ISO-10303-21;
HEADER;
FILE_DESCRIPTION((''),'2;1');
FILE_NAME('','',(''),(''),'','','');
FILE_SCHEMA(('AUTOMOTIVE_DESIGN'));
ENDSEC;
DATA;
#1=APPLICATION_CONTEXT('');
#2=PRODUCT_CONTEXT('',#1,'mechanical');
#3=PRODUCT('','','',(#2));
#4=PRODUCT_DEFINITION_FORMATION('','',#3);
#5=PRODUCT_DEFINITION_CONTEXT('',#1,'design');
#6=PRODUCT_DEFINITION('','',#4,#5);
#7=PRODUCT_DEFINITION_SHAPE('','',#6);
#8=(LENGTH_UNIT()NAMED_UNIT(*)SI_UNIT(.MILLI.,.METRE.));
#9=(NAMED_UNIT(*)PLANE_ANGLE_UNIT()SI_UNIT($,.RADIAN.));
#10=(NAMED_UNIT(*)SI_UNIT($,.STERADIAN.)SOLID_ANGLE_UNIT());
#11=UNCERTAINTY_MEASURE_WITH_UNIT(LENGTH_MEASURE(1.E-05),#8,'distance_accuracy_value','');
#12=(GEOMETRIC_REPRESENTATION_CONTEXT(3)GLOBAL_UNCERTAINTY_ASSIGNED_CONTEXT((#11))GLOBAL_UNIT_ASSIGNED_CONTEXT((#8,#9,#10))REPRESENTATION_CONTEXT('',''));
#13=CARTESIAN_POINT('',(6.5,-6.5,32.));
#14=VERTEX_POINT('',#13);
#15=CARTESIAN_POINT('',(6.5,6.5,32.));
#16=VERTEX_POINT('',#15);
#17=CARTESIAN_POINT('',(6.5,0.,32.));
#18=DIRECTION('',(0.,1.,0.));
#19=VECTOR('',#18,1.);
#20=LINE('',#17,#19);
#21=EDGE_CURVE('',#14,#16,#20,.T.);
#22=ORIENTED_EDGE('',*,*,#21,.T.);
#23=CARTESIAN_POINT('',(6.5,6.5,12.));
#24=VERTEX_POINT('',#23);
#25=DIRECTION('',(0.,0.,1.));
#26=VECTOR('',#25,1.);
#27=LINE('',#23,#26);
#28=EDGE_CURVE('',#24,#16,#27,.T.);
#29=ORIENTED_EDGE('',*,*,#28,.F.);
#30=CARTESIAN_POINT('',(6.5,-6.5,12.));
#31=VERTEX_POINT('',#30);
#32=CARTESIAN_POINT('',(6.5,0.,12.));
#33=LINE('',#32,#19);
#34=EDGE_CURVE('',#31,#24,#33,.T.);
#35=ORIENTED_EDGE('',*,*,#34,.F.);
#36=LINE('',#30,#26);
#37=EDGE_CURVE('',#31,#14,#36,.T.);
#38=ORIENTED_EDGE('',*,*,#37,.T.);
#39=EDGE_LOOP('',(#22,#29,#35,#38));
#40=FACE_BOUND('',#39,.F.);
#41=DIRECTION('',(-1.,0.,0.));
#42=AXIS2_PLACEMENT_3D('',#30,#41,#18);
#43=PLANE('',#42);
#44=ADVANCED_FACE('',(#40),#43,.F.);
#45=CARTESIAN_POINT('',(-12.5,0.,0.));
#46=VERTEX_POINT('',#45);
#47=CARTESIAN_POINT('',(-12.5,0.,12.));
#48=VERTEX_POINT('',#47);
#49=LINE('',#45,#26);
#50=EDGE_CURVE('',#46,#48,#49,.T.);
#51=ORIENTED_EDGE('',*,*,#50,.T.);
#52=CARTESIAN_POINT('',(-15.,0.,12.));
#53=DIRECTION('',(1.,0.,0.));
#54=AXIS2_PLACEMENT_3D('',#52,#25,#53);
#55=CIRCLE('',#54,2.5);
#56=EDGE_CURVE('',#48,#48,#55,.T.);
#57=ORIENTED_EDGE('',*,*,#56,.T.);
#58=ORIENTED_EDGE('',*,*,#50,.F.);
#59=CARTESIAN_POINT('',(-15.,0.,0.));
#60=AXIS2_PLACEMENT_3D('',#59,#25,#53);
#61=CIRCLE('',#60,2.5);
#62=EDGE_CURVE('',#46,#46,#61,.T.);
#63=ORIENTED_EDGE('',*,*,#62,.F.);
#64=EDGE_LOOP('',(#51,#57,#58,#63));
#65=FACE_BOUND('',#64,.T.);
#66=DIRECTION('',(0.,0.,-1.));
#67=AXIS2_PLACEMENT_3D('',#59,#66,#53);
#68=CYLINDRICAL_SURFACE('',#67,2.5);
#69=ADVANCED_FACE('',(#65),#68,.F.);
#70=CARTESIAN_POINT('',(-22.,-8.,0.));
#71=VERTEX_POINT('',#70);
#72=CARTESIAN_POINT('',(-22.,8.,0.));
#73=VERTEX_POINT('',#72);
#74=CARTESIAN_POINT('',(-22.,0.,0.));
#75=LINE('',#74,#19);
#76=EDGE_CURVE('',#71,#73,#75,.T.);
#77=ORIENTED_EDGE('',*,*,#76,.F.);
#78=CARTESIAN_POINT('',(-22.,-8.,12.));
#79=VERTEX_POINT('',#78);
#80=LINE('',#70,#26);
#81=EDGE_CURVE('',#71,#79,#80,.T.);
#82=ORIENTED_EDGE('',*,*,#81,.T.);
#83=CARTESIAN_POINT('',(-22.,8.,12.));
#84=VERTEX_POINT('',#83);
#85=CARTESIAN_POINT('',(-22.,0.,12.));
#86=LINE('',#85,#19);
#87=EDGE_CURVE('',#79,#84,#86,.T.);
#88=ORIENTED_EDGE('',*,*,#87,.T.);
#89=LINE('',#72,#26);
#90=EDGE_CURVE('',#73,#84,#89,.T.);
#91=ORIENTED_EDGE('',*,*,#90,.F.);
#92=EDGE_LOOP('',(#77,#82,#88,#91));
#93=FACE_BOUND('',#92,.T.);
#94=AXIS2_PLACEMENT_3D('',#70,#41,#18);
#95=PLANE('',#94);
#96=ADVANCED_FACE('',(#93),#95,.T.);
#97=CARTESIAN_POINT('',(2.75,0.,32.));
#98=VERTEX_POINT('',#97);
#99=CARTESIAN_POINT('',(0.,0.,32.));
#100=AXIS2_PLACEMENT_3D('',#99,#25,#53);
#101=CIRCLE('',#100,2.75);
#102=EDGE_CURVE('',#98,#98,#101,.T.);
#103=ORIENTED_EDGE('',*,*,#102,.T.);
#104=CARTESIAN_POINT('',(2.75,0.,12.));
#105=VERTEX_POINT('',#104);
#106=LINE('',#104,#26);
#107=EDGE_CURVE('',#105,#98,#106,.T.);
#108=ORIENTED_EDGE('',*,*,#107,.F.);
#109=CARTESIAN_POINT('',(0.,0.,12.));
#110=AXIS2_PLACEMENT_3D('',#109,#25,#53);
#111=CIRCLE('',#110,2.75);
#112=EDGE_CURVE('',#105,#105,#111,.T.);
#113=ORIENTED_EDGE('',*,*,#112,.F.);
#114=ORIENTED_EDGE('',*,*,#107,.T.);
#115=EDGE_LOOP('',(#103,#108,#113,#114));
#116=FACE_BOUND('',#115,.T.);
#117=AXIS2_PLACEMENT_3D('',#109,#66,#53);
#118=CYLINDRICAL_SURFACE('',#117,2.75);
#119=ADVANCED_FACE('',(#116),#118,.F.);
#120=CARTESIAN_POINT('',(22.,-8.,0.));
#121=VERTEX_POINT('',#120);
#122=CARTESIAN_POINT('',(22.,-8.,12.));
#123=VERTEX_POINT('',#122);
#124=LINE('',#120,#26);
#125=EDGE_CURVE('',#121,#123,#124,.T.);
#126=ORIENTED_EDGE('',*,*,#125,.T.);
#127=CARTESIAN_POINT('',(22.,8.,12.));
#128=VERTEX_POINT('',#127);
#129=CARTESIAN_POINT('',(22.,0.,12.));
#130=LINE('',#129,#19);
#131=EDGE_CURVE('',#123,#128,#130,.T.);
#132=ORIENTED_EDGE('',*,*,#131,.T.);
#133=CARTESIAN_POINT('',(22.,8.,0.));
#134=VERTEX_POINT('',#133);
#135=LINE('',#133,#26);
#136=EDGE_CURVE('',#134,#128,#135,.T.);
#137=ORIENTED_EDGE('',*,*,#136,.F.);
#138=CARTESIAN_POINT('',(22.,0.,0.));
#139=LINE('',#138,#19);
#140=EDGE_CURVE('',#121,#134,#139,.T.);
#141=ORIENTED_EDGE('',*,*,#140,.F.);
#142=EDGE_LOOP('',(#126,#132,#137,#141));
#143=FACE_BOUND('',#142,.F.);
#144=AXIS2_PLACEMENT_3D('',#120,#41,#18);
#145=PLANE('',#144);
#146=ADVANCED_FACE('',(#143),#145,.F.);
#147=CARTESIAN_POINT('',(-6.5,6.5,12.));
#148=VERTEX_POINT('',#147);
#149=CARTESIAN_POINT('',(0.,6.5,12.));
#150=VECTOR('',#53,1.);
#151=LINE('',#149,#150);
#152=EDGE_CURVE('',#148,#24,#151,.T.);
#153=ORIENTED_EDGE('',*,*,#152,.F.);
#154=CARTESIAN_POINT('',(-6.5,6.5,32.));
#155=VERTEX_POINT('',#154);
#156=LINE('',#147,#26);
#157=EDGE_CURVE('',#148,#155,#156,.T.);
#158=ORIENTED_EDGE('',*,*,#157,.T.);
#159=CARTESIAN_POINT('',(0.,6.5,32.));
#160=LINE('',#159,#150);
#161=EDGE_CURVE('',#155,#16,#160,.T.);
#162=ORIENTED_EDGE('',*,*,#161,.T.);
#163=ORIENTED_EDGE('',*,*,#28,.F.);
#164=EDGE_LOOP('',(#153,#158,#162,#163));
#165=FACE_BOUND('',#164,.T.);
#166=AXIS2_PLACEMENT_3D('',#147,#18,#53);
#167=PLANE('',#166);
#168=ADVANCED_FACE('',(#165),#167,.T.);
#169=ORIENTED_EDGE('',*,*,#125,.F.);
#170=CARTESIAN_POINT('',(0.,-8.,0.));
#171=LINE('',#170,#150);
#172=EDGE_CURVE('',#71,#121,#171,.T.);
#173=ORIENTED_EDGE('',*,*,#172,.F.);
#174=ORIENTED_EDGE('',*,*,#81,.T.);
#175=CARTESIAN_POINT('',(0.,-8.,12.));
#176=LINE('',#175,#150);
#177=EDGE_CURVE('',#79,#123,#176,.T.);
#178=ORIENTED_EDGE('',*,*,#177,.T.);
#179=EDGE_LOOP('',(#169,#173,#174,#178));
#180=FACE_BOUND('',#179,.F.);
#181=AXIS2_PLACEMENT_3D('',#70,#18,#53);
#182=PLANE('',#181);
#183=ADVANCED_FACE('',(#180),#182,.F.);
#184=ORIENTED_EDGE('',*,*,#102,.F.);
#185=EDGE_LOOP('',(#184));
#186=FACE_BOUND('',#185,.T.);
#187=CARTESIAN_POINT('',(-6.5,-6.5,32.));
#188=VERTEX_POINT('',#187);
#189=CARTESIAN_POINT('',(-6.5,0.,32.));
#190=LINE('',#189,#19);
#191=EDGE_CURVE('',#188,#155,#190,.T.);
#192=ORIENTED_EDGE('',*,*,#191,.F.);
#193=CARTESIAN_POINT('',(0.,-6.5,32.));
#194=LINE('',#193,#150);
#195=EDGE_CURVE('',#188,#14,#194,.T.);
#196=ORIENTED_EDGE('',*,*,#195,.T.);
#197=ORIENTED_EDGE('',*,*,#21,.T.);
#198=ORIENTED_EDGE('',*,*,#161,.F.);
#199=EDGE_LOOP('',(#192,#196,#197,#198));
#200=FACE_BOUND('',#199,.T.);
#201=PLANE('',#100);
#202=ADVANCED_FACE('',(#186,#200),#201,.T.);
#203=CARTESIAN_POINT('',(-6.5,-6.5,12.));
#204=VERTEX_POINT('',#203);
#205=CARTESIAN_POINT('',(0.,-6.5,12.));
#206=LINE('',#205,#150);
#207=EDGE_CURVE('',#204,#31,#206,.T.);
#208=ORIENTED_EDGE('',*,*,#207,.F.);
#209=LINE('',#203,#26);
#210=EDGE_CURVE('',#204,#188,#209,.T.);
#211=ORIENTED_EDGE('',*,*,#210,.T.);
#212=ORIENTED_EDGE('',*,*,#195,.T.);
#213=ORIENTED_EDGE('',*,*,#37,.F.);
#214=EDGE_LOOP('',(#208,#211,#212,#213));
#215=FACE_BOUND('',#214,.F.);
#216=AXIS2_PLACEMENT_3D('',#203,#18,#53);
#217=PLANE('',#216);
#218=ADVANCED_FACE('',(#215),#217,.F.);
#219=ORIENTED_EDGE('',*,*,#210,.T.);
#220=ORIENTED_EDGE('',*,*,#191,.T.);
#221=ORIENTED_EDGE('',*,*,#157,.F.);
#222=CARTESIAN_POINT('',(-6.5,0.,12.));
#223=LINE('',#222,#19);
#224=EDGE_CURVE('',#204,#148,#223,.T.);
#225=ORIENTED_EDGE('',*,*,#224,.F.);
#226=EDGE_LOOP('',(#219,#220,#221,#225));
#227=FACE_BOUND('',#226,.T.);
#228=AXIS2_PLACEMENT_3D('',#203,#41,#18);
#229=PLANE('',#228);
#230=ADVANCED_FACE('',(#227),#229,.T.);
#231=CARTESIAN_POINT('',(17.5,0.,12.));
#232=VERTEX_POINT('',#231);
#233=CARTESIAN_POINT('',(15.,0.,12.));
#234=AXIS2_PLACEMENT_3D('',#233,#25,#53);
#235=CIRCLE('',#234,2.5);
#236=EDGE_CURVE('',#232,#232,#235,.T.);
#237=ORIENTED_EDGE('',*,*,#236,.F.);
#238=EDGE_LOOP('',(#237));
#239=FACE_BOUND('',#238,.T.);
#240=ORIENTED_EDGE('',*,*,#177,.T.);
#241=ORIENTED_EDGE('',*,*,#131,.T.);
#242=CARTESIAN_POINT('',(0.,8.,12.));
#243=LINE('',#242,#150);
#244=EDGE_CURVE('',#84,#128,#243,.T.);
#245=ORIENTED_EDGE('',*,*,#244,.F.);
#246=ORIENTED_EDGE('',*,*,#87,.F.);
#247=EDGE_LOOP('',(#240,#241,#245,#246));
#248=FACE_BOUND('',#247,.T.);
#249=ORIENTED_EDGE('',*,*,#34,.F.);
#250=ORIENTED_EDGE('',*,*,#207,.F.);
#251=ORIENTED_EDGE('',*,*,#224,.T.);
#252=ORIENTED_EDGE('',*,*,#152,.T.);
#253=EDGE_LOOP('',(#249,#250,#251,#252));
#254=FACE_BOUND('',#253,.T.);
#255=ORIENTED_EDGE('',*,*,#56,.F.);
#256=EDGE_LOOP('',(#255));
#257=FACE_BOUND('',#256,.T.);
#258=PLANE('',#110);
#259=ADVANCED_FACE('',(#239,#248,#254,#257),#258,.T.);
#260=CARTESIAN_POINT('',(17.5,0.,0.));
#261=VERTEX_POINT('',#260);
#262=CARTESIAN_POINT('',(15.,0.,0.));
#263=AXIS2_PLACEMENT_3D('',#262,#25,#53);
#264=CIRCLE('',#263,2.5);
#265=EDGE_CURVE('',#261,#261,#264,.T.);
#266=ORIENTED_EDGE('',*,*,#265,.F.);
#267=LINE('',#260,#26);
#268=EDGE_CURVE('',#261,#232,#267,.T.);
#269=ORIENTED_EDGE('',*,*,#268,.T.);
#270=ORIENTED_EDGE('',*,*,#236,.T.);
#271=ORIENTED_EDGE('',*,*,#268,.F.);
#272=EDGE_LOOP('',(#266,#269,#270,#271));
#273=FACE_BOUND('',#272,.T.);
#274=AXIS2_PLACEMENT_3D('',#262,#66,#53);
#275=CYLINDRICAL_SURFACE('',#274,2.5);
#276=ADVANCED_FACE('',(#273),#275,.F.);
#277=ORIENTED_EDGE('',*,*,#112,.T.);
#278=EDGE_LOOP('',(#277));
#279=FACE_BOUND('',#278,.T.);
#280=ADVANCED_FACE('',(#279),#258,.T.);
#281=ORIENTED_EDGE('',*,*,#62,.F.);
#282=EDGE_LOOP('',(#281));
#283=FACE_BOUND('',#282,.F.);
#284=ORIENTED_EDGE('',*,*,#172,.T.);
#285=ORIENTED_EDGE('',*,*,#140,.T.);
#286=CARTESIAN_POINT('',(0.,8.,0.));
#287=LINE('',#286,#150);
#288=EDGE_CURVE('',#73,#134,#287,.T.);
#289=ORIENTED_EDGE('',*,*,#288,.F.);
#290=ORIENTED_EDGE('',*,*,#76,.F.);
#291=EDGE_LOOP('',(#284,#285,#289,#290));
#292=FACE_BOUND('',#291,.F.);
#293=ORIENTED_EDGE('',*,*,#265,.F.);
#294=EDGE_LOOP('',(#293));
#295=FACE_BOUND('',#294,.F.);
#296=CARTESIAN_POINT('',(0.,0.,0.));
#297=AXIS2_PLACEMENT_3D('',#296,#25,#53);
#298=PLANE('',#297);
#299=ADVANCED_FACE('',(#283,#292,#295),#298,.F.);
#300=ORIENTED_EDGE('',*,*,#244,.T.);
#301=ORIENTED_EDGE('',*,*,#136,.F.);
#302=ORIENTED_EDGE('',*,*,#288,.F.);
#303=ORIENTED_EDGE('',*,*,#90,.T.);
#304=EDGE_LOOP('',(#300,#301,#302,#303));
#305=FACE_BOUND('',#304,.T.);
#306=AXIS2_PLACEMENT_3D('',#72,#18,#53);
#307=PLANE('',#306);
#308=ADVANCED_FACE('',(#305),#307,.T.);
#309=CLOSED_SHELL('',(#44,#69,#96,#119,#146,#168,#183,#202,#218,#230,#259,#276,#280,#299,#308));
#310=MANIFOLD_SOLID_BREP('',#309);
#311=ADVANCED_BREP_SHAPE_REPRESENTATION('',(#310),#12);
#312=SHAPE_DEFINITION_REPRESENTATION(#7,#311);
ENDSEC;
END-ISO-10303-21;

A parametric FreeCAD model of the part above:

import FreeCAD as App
import Part
import Sketcher

V = App.Vector


def add_polygon(sketch, points):
    """Adds a closed chain of lines whose ends are joined by coincident constraints."""
    first, n = sketch.GeometryCount, len(points)
    for a, b in zip(points, points[1:] + points[:1]):
        sketch.addGeometry(Part.LineSegment(App.Vector(*a, 0), App.Vector(*b, 0)), False)
    for i in range(n):
        sketch.addConstraint(Sketcher.Constraint("Coincident", first + i, 2, first + (i + 1) % n, 1))

doc = App.newDocument("Part")
params = doc.addObject("Spreadsheet::Sheet", "Params")
for row, (alias, value) in enumerate([
    ("sketch1_diameter", "5 mm"),
    ("sketch1_width", "44 mm"),
    ("sketch1_height", "16 mm"),
    ("pad1_length", "12 mm"),
    ("sketch2_diameter", "5.5 mm"),
    ("sketch2_width", "13 mm"),
    ("pad2_length", "20 mm"),
], start=1):
    params.set(f"A{row}", alias)
    params.set(f"B{row}", "=" + value)
    params.setAlias(f"B{row}", alias)

body = doc.addObject("PartDesign::Body", "Body")

# Sketch on XY plane
sketch1 = doc.addObject("Sketcher::SketchObject", "Sketch")
body.addObject(sketch1)
sketch1.AttachmentSupport = (doc.XY_Plane, [""])
sketch1.MapMode = "FlatFace"
add_polygon(sketch1, [(-22, 8), (-22, -8), (22, -8), (22, 8)])  # lines 0-3
sketch1.addGeometry(Part.Circle(V(-15, 0, 0), V(0, 0, 1), 2.5), False)  # 4
sketch1.addGeometry(Part.Circle(V(15, 0, 0), V(0, 0, 1), 2.5), False)  # 5
sketch1.addConstraint([
    Sketcher.Constraint("Vertical", 0),
    Sketcher.Constraint("Horizontal", 1),
    Sketcher.Constraint("Vertical", 2),
    Sketcher.Constraint("Horizontal", 3),
    Sketcher.Constraint("Equal", 4, 5),
    Sketcher.Constraint("Symmetric", 4, 3, 5, 3, -1, 1),
    Sketcher.Constraint("Symmetric", 0, 2, 2, 2, -1, 1),
    Sketcher.Constraint("PointOnObject", 4, 3, -1),
    Sketcher.Constraint("Diameter", 4, 5.0),
    Sketcher.Constraint("DistanceX", 1, 1, 1, 2, 44.0),
    Sketcher.Constraint("DistanceY", 0, 2, 0, 1, 16.0),
    Sketcher.Constraint("DistanceX", 4, 3, -1, 1, 15.0),
])
sketch1.setExpression("Constraints[12]", "Params.sketch1_diameter")
sketch1.setExpression("Constraints[13]", "Params.sketch1_width")
sketch1.setExpression("Constraints[14]", "Params.sketch1_height")
pad1 = doc.addObject("PartDesign::Pad", "Pad")
body.addObject(pad1)
pad1.Profile = sketch1
pad1.setExpression("Length", "Params.pad1_length")

# Sketch on XY plane
sketch2 = doc.addObject("Sketcher::SketchObject", "Sketch001")
body.addObject(sketch2)
sketch2.AttachmentSupport = (doc.XY_Plane, [""])
sketch2.MapMode = "FlatFace"
sketch2.AttachmentOffset = App.Placement(V(0, 0, 12), App.Rotation())
add_polygon(sketch2, [(-6.5, 6.5), (-6.5, -6.5), (6.5, -6.5), (6.5, 6.5)])  # lines 0-3
sketch2.addGeometry(Part.Circle(V(0, 0, 0), V(0, 0, 1), 2.75), False)  # 4
sketch2.addConstraint([
    Sketcher.Constraint("Vertical", 0),
    Sketcher.Constraint("Horizontal", 1),
    Sketcher.Constraint("Vertical", 2),
    Sketcher.Constraint("Horizontal", 3),
    Sketcher.Constraint("Coincident", 4, 3, -1, 1),
    Sketcher.Constraint("Symmetric", 0, 2, 2, 2, -1, 1),
    Sketcher.Constraint("Equal", 3, 0),
    Sketcher.Constraint("Diameter", 4, 5.5),
    Sketcher.Constraint("DistanceX", 1, 1, 1, 2, 13.0),
])
sketch2.setExpression("Constraints[11]", "Params.sketch2_diameter")
sketch2.setExpression("Constraints[12]", "Params.sketch2_width")
pad2 = doc.addObject("PartDesign::Pad", "Pad001")
body.addObject(pad2)
pad2.Profile = sketch2
pad2.setExpression("Length", "Params.pad2_length")

doc.recompute()
